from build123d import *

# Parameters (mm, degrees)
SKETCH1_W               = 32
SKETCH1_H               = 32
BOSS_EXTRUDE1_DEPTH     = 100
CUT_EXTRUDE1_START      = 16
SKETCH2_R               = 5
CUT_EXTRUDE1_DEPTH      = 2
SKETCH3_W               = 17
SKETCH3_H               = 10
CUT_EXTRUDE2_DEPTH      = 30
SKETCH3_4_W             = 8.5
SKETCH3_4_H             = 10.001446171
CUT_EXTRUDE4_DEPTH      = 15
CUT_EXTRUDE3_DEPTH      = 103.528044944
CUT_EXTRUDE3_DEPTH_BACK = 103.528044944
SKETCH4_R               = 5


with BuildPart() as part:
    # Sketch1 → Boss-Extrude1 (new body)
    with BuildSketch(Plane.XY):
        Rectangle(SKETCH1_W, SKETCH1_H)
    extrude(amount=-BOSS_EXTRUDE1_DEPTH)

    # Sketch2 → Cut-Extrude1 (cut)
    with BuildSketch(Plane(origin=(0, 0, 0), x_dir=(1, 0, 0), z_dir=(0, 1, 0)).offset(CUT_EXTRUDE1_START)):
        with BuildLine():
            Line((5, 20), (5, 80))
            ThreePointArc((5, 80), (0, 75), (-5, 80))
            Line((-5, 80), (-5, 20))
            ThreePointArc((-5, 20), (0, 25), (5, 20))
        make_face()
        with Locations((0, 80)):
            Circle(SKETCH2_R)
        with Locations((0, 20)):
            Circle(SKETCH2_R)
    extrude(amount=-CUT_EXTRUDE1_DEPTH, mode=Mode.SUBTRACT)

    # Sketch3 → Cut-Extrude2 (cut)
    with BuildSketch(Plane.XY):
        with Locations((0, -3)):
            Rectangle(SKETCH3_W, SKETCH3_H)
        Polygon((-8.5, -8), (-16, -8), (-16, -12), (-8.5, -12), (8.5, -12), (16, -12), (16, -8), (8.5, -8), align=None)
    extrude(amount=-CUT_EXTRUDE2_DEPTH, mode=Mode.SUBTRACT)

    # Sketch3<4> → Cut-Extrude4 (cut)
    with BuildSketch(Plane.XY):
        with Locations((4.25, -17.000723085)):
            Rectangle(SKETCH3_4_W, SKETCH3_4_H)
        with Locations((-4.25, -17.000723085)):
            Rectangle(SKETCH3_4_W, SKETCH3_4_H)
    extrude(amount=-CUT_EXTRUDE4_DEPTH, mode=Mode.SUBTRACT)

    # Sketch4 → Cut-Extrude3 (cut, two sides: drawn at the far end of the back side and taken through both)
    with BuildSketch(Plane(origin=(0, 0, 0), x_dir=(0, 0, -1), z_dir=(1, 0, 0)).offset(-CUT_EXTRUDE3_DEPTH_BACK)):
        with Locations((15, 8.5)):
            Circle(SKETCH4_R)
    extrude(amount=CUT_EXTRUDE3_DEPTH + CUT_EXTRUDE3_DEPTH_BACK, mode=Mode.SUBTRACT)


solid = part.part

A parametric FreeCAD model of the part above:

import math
import FreeCAD as App
import Part
import Sketcher
from FreeCAD import Vector

doc = App.newDocument("Part")
body = doc.addObject("PartDesign::Body", "Body")

# Sketch on XY plane
sketch1 = doc.addObject("Sketcher::SketchObject", "Sketch")
body.addObject(sketch1)
sketch1.AttachmentSupport = (doc.XY_Plane, [""])
sketch1.MapMode = "FlatFace"
sketch1.addGeometry([
    Part.LineSegment(Vector(-16, 16, 0), Vector(-16, -16, 0)),
    Part.LineSegment(Vector(-16, -16, 0), Vector(16, -16, 0)),
    Part.LineSegment(Vector(16, -16, 0), Vector(16, 16, 0)),
    Part.LineSegment(Vector(16, 16, 0), Vector(-16, 16, 0)),
], False)
sketch1.addConstraint([
    Sketcher.Constraint("Coincident", 0, 2, 1, 1),
    Sketcher.Constraint("Coincident", 1, 2, 2, 1),
    Sketcher.Constraint("Coincident", 2, 2, 3, 1),
    Sketcher.Constraint("Coincident", 3, 2, 0, 1),
    Sketcher.Constraint("Vertical", 0),
    Sketcher.Constraint("Horizontal", 1),
    Sketcher.Constraint("Vertical", 2),
    Sketcher.Constraint("Horizontal", 3),
    Sketcher.Constraint("Symmetric", 0, 2, 2, 2, -1, 1),
    Sketcher.Constraint("Equal", 3, 0),
    Sketcher.Constraint("DistanceX", 1, 1, 1, 2, 32.0),
])
pad1 = doc.addObject("PartDesign::Pad", "Pad")
body.addObject(pad1)
pad1.Profile = sketch1
pad1.Length = 100
pad1.Reversed = True

# Sketch on XZ plane
sketch2 = doc.addObject("Sketcher::SketchObject", "Sketch001")
body.addObject(sketch2)
sketch2.AttachmentSupport = (doc.XZ_Plane, [""])
sketch2.MapMode = "FlatFace"
sketch2.AttachmentOffset = App.Placement(Vector(0, 0, -16), App.Rotation())
sketch2.addGeometry([
    Part.LineSegment(Vector(5, -20, 0), Vector(5, -80, 0)),
    Part.ArcOfCircle(Part.Circle(Vector(0, -80, 0), Vector(0, 0, 1), 5), math.radians(180), math.radians(360)),
    Part.LineSegment(Vector(-5, -80, 0), Vector(-5, -20, 0)),
    Part.ArcOfCircle(Part.Circle(Vector(0, -20, 0), Vector(0, 0, 1), 5), math.radians(0), math.radians(180)),
], False)
sketch2.addConstraint([
    Sketcher.Constraint("Tangent", 0, 2, 1, 2),
    Sketcher.Constraint("Tangent", 1, 1, 2, 1),
    Sketcher.Constraint("Tangent", 2, 2, 3, 2),
    Sketcher.Constraint("Tangent", 3, 1, 0, 1),
    Sketcher.Constraint("Vertical", 0),
    Sketcher.Constraint("Vertical", 2),
    Sketcher.Constraint("PointOnObject", 1, 3, -2),
    Sketcher.Constraint("Radius", 1, 5.0),
    Sketcher.Constraint("DistanceY", 0, 2, 0, 1, 60.0),
    Sketcher.Constraint("DistanceY", 1, 3, -1, 1, 80.0),
])
pocket1 = doc.addObject("PartDesign::Pocket", "Pocket")
body.addObject(pocket1)
pocket1.Profile = sketch2
pocket1.Length = 2
pocket1.Reversed = True

# Sketch on XY plane
sketch3 = doc.addObject("Sketcher::SketchObject", "Sketch002")
body.addObject(sketch3)
sketch3.AttachmentSupport = (doc.XY_Plane, [""])
sketch3.MapMode = "FlatFace"
sketch3.addGeometry([
    Part.LineSegment(Vector(-8.5, 2, 0), Vector(-8.5, -8, 0)),  # 0
    Part.LineSegment(Vector(-8.5, -8, 0), Vector(-16, -8, 0)),  # 1
    Part.LineSegment(Vector(-16, -8, 0), Vector(-16, -12, 0)),  # 2
    Part.LineSegment(Vector(-16, -12, 0), Vector(16, -12, 0)),  # 3
    Part.LineSegment(Vector(16, -12, 0), Vector(16, -8, 0)),  # 4
    Part.LineSegment(Vector(16, -8, 0), Vector(8.5, -8, 0)),  # 5
    Part.LineSegment(Vector(8.5, -8, 0), Vector(8.5, 2, 0)),  # 6
    Part.LineSegment(Vector(8.5, 2, 0), Vector(-8.5, 2, 0)),  # 7
], False)
sketch3.addConstraint([
    Sketcher.Constraint("Coincident", 0, 2, 1, 1),
    Sketcher.Constraint("Coincident", 1, 2, 2, 1),
    Sketcher.Constraint("Coincident", 2, 2, 3, 1),
    Sketcher.Constraint("Coincident", 3, 2, 4, 1),
    Sketcher.Constraint("Coincident", 4, 2, 5, 1),
    Sketcher.Constraint("Coincident", 5, 2, 6, 1),
    Sketcher.Constraint("Coincident", 6, 2, 7, 1),
    Sketcher.Constraint("Coincident", 7, 2, 0, 1),
    Sketcher.Constraint("Vertical", 0),
    Sketcher.Constraint("Horizontal", 1),
    Sketcher.Constraint("Vertical", 2),
    Sketcher.Constraint("Horizontal", 3),
    Sketcher.Constraint("Vertical", 4),
    Sketcher.Constraint("Horizontal", 5),
    Sketcher.Constraint("Vertical", 6),
    Sketcher.Constraint("Horizontal", 7),
    Sketcher.Constraint("Symmetric", 1, 2, 4, 2, -2),
    Sketcher.Constraint("Equal", 1, 5),
    Sketcher.Constraint("DistanceX", 3, 1, 3, 2, 32.0),
    Sketcher.Constraint("DistanceX", 7, 2, 7, 1, 17.0),
    Sketcher.Constraint("DistanceY", 0, 2, 0, 1, 10.0),
    Sketcher.Constraint("DistanceY", 2, 2, 2, 1, 4.0),
    Sketcher.Constraint("DistanceY", 0, 2, -1, 1, 8.0),
])
pocket2 = doc.addObject("PartDesign::Pocket", "Pocket001")
body.addObject(pocket2)
pocket2.Profile = sketch3
pocket2.Length = 30

# Sketch on XY plane
sketch4 = doc.addObject("Sketcher::SketchObject", "Sketch003")
body.addObject(sketch4)
sketch4.AttachmentSupport = (doc.XY_Plane, [""])
sketch4.MapMode = "FlatFace"
sketch4.addGeometry([
    Part.LineSegment(Vector(8.5, -22.001446, 0), Vector(8.5, -12, 0)),
    Part.LineSegment(Vector(8.5, -12, 0), Vector(-8.5, -12, 0)),
    Part.LineSegment(Vector(-8.5, -12, 0), Vector(-8.5, -22.001446, 0)),
    Part.LineSegment(Vector(-8.5, -22.001446, 0), Vector(8.5, -22.001446, 0)),
], False)
sketch4.addConstraint([
    Sketcher.Constraint("Coincident", 0, 2, 1, 1),
    Sketcher.Constraint("Coincident", 1, 2, 2, 1),
    Sketcher.Constraint("Coincident", 2, 2, 3, 1),
    Sketcher.Constraint("Coincident", 3, 2, 0, 1),
    Sketcher.Constraint("Vertical", 0),
    Sketcher.Constraint("Horizontal", 1),
    Sketcher.Constraint("Vertical", 2),
    Sketcher.Constraint("Horizontal", 3),
    Sketcher.Constraint("DistanceX", 1, 2, 1, 1, 17.0),
    Sketcher.Constraint("DistanceY", 0, 2, -1, 1, 12.0),
    Sketcher.Constraint("DistanceX", -1, 1, 0, 2, 8.5),
    Sketcher.Constraint("DistanceY", 0, 1, 0, 2, 10.001446),
])
pocket3 = doc.addObject("PartDesign::Pocket", "Pocket002")
body.addObject(pocket3)
pocket3.Profile = sketch4
pocket3.Length = 15

# Sketch on YZ plane
sketch5 = doc.addObject("Sketcher::SketchObject", "Sketch004")
body.addObject(sketch5)
sketch5.AttachmentSupport = (doc.YZ_Plane, [""])
sketch5.MapMode = "FlatFace"
sketch5.addGeometry(Part.Circle(Vector(8.5, -15, 0), Vector(0, 0, 1), 5), False)
sketch5.addConstraint([
    Sketcher.Constraint("Diameter", 0, 10.0),
    Sketcher.Constraint("DistanceY", 0, 3, -1, 1, 15.0),
    Sketcher.Constraint("DistanceX", -1, 1, 0, 3, 8.5),
])
pocket4 = doc.addObject("PartDesign::Pocket", "Pocket003")
body.addObject(pocket4)
pocket4.Profile = sketch5
pocket4.Type = "ThroughAll"
pocket4.Midplane = True

doc.recompute()
